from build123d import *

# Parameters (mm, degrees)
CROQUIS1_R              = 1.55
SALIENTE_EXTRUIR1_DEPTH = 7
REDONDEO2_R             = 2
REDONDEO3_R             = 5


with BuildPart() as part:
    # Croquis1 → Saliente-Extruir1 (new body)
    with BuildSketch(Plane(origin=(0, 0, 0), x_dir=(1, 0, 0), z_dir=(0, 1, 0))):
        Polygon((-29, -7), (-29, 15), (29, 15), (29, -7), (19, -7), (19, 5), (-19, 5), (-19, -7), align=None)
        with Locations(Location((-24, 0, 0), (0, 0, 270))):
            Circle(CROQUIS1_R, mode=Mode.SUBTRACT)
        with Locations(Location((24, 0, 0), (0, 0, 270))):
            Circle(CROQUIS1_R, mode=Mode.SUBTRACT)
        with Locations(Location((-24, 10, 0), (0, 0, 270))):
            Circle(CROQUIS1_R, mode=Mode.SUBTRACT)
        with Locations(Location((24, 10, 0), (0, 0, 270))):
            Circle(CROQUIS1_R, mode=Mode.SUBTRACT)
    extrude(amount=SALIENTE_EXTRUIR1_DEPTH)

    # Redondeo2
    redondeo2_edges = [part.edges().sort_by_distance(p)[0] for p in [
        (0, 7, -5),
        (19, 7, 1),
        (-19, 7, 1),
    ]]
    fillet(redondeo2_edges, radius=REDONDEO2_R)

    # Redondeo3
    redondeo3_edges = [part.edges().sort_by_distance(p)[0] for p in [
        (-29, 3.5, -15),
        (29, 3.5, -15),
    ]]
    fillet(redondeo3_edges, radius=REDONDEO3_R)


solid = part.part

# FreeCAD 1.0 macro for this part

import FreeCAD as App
import Part
import Sketcher
Q = App.Units.Quantity


def edges_at(feature, points):
    """Names of the edges that pass closest to the given points."""
    edges = feature.Shape.Edges
    near = lambda p: min(range(len(edges)), key=lambda i: edges[i].distToShape(Part.Vertex(*p))[0])
    return sorted({f"Edge{near(p) + 1}" for p in points})

doc = App.newDocument("Part")
params = doc.addObject("Spreadsheet::Sheet", "Params")
for row, (alias, value) in enumerate([
    ("sketch1_diameter", "3.1 mm"),
    ("sketch1_width", "10 mm"),
    ("sketch1_width2", "38 mm"),
    ("sketch1_height", "22 mm"),
    ("sketch1_height2", "12 mm"),
    ("pad1_length", "7 mm"),
    ("fillet_radius", "2 mm"),
    ("fillet2_radius", "5 mm"),
], start=1):
    params.set(f"A{row}", alias)
    params.set(f"B{row}", "=" + value)
    params.setAlias(f"B{row}", alias)

body = doc.addObject("PartDesign::Body", "Body")

sketch1 = body.newObject("Sketcher::SketchObject", "Sketch")
sketch1.AttachmentSupport = (doc.getObject("XZ_Plane"), [""])
sketch1.MapMode = "FlatFace"
sketch1.addGeometry([
    Part.LineSegment(App.Vector(-29, -15, 0), App.Vector(-29, 7, 0)),
    Part.LineSegment(App.Vector(-29, 7, 0), App.Vector(-19, 7, 0)),
    Part.LineSegment(App.Vector(-19, 7, 0), App.Vector(-19, -5, 0)),
    Part.LineSegment(App.Vector(-19, -5, 0), App.Vector(19, -5, 0)),
    Part.LineSegment(App.Vector(19, -5, 0), App.Vector(19, 7, 0)),
    Part.LineSegment(App.Vector(19, 7, 0), App.Vector(29, 7, 0)),
    Part.LineSegment(App.Vector(29, 7, 0), App.Vector(29, -15, 0)),
    Part.LineSegment(App.Vector(29, -15, 0), App.Vector(-29, -15, 0)),
    Part.Circle(App.Vector(24, 0, 0), App.Vector(0, 0, 1), 1.55),
    Part.Circle(App.Vector(-24, 0, 0), App.Vector(0, 0, 1), 1.55),
    Part.Circle(App.Vector(24, -10, 0), App.Vector(0, 0, 1), 1.55),
    Part.Circle(App.Vector(-24, -10, 0), App.Vector(0, 0, 1), 1.55),
], False)
sketch1.addConstraint([
    Sketcher.Constraint("Coincident", 0, 2, 1, 1),
    Sketcher.Constraint("Coincident", 1, 2, 2, 1),
    Sketcher.Constraint("Coincident", 2, 2, 3, 1),
    Sketcher.Constraint("Coincident", 3, 2, 4, 1),
    Sketcher.Constraint("Coincident", 4, 2, 5, 1),
    Sketcher.Constraint("Coincident", 5, 2, 6, 1),
    Sketcher.Constraint("Coincident", 6, 2, 7, 1),
    Sketcher.Constraint("Coincident", 7, 2, 0, 1),
    Sketcher.Constraint("Vertical", 0),
    Sketcher.Constraint("Horizontal", 1),
    Sketcher.Constraint("Vertical", 2),
    Sketcher.Constraint("Horizontal", 3),
    Sketcher.Constraint("Vertical", 4),
    Sketcher.Constraint("Horizontal", 5),
    Sketcher.Constraint("Vertical", 6),
    Sketcher.Constraint("Horizontal", 7),
    Sketcher.Constraint("Equal", 8, 9),
    Sketcher.Constraint("Equal", 9, 10),
    Sketcher.Constraint("Equal", 10, 11),
    Sketcher.Constraint("Symmetric", 8, 3, 9, 3, -1, 1),
    Sketcher.Constraint("Symmetric", 10, 3, 11, 3, -2),
    Sketcher.Constraint("Symmetric", 1, 2, 4, 2, -2),
    Sketcher.Constraint("PointOnObject", 8, 3, -1),
    Sketcher.Constraint("Vertical", 8, 3, 10, 3),
    Sketcher.Constraint("Equal", 1, 5),
    Sketcher.Constraint("Diameter", 8, Q("3.1 mm")),
    Sketcher.Constraint("DistanceX", 1, 1, 1, 2, Q("10 mm")),
    Sketcher.Constraint("DistanceX", 3, 1, 3, 2, Q("38 mm")),
    Sketcher.Constraint("DistanceY", 0, 1, 0, 2, Q("22 mm")),
    Sketcher.Constraint("DistanceY", 2, 2, 2, 1, Q("12 mm")),
    Sketcher.Constraint("DistanceX", -1, 1, 8, 3, Q("24 mm")),
    Sketcher.Constraint("DistanceY", 10, 3, -1, 1, Q("10 mm")),
    Sketcher.Constraint("DistanceY", -1, 1, 0, 2, Q("7 mm")),
])
sketch1.setExpression("Constraints[25]", "Params.sketch1_diameter")
sketch1.setExpression("Constraints[26]", "Params.sketch1_width")
sketch1.setExpression("Constraints[27]", "Params.sketch1_width2")
sketch1.setExpression("Constraints[28]", "Params.sketch1_height")
sketch1.setExpression("Constraints[29]", "Params.sketch1_height2")
pad1 = body.newObject("PartDesign::Pad", "Pad")
pad1.Profile = sketch1
pad1.setExpression("Length", "Params.pad1_length")
pad1.Reversed = True
doc.recompute()

fillet = body.newObject("PartDesign::Fillet", "Fillet")
fillet.Base = (pad1, edges_at(pad1, [(0, 7, -5), (19, 7, 1), (-19, 7, 1)]))
fillet.setExpression("Radius", "Params.fillet_radius")
doc.recompute()

fillet2 = body.newObject("PartDesign::Fillet", "Fillet001")
fillet2.Base = (fillet, edges_at(fillet, [(-29, 3.5, -15), (29, 3.5, -15)]))
fillet2.setExpression("Radius", "Params.fillet2_radius")

doc.recompute()
